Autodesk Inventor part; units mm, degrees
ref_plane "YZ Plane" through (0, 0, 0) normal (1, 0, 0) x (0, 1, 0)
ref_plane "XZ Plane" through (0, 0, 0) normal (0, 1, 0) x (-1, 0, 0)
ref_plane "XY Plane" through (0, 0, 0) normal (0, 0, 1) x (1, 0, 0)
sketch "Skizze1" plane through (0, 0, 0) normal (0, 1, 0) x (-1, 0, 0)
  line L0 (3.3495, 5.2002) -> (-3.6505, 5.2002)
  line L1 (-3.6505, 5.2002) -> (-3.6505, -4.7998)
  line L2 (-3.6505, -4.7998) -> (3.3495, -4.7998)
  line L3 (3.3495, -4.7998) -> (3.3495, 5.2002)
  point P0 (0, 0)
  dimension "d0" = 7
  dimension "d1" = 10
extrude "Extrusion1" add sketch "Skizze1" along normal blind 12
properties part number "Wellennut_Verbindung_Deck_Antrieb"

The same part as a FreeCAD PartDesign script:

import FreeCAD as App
import Part
import Sketcher
Q = App.Units.Quantity

doc = App.newDocument("Part")
body = doc.addObject("PartDesign::Body", "Body")

# Sketch on XZ plane
sketch1 = body.newObject("Sketcher::SketchObject", "Sketch")
sketch1.AttachmentSupport = (doc.getObject("XZ_Plane"), [""])
sketch1.MapMode = "FlatFace"
sketch1.addGeometry([
    Part.LineSegment(App.Vector(-3.3495, -4.7998, 0), App.Vector(-3.3495, 5.2002, 0)),
    Part.LineSegment(App.Vector(-3.3495, 5.2002, 0), App.Vector(3.6505, 5.2002, 0)),
    Part.LineSegment(App.Vector(3.6505, 5.2002, 0), App.Vector(3.6505, -4.7998, 0)),
    Part.LineSegment(App.Vector(3.6505, -4.7998, 0), App.Vector(-3.3495, -4.7998, 0)),
], False)
sketch1.addConstraint([
    Sketcher.Constraint("Coincident", 0, 2, 1, 1),
    Sketcher.Constraint("Coincident", 1, 2, 2, 1),
    Sketcher.Constraint("Coincident", 2, 2, 3, 1),
    Sketcher.Constraint("Coincident", 3, 2, 0, 1),
    Sketcher.Constraint("Vertical", 0),
    Sketcher.Constraint("Horizontal", 1),
    Sketcher.Constraint("Vertical", 2),
    Sketcher.Constraint("Horizontal", 3),
    Sketcher.Constraint("DistanceX", 1, 1, 1, 2, Q("7 mm")),
    Sketcher.Constraint("DistanceY", 0, 1, 0, 2, Q("10 mm")),
    Sketcher.Constraint("DistanceX", 0, 2, -1, 1, Q("3.3495 mm")),
    Sketcher.Constraint("DistanceY", -1, 1, 0, 2, Q("5.2002 mm")),
])
pad1 = body.newObject("PartDesign::Pad", "Pad")
pad1.Profile = sketch1
pad1.Length = 12
pad1.Reversed = True

doc.recompute()
